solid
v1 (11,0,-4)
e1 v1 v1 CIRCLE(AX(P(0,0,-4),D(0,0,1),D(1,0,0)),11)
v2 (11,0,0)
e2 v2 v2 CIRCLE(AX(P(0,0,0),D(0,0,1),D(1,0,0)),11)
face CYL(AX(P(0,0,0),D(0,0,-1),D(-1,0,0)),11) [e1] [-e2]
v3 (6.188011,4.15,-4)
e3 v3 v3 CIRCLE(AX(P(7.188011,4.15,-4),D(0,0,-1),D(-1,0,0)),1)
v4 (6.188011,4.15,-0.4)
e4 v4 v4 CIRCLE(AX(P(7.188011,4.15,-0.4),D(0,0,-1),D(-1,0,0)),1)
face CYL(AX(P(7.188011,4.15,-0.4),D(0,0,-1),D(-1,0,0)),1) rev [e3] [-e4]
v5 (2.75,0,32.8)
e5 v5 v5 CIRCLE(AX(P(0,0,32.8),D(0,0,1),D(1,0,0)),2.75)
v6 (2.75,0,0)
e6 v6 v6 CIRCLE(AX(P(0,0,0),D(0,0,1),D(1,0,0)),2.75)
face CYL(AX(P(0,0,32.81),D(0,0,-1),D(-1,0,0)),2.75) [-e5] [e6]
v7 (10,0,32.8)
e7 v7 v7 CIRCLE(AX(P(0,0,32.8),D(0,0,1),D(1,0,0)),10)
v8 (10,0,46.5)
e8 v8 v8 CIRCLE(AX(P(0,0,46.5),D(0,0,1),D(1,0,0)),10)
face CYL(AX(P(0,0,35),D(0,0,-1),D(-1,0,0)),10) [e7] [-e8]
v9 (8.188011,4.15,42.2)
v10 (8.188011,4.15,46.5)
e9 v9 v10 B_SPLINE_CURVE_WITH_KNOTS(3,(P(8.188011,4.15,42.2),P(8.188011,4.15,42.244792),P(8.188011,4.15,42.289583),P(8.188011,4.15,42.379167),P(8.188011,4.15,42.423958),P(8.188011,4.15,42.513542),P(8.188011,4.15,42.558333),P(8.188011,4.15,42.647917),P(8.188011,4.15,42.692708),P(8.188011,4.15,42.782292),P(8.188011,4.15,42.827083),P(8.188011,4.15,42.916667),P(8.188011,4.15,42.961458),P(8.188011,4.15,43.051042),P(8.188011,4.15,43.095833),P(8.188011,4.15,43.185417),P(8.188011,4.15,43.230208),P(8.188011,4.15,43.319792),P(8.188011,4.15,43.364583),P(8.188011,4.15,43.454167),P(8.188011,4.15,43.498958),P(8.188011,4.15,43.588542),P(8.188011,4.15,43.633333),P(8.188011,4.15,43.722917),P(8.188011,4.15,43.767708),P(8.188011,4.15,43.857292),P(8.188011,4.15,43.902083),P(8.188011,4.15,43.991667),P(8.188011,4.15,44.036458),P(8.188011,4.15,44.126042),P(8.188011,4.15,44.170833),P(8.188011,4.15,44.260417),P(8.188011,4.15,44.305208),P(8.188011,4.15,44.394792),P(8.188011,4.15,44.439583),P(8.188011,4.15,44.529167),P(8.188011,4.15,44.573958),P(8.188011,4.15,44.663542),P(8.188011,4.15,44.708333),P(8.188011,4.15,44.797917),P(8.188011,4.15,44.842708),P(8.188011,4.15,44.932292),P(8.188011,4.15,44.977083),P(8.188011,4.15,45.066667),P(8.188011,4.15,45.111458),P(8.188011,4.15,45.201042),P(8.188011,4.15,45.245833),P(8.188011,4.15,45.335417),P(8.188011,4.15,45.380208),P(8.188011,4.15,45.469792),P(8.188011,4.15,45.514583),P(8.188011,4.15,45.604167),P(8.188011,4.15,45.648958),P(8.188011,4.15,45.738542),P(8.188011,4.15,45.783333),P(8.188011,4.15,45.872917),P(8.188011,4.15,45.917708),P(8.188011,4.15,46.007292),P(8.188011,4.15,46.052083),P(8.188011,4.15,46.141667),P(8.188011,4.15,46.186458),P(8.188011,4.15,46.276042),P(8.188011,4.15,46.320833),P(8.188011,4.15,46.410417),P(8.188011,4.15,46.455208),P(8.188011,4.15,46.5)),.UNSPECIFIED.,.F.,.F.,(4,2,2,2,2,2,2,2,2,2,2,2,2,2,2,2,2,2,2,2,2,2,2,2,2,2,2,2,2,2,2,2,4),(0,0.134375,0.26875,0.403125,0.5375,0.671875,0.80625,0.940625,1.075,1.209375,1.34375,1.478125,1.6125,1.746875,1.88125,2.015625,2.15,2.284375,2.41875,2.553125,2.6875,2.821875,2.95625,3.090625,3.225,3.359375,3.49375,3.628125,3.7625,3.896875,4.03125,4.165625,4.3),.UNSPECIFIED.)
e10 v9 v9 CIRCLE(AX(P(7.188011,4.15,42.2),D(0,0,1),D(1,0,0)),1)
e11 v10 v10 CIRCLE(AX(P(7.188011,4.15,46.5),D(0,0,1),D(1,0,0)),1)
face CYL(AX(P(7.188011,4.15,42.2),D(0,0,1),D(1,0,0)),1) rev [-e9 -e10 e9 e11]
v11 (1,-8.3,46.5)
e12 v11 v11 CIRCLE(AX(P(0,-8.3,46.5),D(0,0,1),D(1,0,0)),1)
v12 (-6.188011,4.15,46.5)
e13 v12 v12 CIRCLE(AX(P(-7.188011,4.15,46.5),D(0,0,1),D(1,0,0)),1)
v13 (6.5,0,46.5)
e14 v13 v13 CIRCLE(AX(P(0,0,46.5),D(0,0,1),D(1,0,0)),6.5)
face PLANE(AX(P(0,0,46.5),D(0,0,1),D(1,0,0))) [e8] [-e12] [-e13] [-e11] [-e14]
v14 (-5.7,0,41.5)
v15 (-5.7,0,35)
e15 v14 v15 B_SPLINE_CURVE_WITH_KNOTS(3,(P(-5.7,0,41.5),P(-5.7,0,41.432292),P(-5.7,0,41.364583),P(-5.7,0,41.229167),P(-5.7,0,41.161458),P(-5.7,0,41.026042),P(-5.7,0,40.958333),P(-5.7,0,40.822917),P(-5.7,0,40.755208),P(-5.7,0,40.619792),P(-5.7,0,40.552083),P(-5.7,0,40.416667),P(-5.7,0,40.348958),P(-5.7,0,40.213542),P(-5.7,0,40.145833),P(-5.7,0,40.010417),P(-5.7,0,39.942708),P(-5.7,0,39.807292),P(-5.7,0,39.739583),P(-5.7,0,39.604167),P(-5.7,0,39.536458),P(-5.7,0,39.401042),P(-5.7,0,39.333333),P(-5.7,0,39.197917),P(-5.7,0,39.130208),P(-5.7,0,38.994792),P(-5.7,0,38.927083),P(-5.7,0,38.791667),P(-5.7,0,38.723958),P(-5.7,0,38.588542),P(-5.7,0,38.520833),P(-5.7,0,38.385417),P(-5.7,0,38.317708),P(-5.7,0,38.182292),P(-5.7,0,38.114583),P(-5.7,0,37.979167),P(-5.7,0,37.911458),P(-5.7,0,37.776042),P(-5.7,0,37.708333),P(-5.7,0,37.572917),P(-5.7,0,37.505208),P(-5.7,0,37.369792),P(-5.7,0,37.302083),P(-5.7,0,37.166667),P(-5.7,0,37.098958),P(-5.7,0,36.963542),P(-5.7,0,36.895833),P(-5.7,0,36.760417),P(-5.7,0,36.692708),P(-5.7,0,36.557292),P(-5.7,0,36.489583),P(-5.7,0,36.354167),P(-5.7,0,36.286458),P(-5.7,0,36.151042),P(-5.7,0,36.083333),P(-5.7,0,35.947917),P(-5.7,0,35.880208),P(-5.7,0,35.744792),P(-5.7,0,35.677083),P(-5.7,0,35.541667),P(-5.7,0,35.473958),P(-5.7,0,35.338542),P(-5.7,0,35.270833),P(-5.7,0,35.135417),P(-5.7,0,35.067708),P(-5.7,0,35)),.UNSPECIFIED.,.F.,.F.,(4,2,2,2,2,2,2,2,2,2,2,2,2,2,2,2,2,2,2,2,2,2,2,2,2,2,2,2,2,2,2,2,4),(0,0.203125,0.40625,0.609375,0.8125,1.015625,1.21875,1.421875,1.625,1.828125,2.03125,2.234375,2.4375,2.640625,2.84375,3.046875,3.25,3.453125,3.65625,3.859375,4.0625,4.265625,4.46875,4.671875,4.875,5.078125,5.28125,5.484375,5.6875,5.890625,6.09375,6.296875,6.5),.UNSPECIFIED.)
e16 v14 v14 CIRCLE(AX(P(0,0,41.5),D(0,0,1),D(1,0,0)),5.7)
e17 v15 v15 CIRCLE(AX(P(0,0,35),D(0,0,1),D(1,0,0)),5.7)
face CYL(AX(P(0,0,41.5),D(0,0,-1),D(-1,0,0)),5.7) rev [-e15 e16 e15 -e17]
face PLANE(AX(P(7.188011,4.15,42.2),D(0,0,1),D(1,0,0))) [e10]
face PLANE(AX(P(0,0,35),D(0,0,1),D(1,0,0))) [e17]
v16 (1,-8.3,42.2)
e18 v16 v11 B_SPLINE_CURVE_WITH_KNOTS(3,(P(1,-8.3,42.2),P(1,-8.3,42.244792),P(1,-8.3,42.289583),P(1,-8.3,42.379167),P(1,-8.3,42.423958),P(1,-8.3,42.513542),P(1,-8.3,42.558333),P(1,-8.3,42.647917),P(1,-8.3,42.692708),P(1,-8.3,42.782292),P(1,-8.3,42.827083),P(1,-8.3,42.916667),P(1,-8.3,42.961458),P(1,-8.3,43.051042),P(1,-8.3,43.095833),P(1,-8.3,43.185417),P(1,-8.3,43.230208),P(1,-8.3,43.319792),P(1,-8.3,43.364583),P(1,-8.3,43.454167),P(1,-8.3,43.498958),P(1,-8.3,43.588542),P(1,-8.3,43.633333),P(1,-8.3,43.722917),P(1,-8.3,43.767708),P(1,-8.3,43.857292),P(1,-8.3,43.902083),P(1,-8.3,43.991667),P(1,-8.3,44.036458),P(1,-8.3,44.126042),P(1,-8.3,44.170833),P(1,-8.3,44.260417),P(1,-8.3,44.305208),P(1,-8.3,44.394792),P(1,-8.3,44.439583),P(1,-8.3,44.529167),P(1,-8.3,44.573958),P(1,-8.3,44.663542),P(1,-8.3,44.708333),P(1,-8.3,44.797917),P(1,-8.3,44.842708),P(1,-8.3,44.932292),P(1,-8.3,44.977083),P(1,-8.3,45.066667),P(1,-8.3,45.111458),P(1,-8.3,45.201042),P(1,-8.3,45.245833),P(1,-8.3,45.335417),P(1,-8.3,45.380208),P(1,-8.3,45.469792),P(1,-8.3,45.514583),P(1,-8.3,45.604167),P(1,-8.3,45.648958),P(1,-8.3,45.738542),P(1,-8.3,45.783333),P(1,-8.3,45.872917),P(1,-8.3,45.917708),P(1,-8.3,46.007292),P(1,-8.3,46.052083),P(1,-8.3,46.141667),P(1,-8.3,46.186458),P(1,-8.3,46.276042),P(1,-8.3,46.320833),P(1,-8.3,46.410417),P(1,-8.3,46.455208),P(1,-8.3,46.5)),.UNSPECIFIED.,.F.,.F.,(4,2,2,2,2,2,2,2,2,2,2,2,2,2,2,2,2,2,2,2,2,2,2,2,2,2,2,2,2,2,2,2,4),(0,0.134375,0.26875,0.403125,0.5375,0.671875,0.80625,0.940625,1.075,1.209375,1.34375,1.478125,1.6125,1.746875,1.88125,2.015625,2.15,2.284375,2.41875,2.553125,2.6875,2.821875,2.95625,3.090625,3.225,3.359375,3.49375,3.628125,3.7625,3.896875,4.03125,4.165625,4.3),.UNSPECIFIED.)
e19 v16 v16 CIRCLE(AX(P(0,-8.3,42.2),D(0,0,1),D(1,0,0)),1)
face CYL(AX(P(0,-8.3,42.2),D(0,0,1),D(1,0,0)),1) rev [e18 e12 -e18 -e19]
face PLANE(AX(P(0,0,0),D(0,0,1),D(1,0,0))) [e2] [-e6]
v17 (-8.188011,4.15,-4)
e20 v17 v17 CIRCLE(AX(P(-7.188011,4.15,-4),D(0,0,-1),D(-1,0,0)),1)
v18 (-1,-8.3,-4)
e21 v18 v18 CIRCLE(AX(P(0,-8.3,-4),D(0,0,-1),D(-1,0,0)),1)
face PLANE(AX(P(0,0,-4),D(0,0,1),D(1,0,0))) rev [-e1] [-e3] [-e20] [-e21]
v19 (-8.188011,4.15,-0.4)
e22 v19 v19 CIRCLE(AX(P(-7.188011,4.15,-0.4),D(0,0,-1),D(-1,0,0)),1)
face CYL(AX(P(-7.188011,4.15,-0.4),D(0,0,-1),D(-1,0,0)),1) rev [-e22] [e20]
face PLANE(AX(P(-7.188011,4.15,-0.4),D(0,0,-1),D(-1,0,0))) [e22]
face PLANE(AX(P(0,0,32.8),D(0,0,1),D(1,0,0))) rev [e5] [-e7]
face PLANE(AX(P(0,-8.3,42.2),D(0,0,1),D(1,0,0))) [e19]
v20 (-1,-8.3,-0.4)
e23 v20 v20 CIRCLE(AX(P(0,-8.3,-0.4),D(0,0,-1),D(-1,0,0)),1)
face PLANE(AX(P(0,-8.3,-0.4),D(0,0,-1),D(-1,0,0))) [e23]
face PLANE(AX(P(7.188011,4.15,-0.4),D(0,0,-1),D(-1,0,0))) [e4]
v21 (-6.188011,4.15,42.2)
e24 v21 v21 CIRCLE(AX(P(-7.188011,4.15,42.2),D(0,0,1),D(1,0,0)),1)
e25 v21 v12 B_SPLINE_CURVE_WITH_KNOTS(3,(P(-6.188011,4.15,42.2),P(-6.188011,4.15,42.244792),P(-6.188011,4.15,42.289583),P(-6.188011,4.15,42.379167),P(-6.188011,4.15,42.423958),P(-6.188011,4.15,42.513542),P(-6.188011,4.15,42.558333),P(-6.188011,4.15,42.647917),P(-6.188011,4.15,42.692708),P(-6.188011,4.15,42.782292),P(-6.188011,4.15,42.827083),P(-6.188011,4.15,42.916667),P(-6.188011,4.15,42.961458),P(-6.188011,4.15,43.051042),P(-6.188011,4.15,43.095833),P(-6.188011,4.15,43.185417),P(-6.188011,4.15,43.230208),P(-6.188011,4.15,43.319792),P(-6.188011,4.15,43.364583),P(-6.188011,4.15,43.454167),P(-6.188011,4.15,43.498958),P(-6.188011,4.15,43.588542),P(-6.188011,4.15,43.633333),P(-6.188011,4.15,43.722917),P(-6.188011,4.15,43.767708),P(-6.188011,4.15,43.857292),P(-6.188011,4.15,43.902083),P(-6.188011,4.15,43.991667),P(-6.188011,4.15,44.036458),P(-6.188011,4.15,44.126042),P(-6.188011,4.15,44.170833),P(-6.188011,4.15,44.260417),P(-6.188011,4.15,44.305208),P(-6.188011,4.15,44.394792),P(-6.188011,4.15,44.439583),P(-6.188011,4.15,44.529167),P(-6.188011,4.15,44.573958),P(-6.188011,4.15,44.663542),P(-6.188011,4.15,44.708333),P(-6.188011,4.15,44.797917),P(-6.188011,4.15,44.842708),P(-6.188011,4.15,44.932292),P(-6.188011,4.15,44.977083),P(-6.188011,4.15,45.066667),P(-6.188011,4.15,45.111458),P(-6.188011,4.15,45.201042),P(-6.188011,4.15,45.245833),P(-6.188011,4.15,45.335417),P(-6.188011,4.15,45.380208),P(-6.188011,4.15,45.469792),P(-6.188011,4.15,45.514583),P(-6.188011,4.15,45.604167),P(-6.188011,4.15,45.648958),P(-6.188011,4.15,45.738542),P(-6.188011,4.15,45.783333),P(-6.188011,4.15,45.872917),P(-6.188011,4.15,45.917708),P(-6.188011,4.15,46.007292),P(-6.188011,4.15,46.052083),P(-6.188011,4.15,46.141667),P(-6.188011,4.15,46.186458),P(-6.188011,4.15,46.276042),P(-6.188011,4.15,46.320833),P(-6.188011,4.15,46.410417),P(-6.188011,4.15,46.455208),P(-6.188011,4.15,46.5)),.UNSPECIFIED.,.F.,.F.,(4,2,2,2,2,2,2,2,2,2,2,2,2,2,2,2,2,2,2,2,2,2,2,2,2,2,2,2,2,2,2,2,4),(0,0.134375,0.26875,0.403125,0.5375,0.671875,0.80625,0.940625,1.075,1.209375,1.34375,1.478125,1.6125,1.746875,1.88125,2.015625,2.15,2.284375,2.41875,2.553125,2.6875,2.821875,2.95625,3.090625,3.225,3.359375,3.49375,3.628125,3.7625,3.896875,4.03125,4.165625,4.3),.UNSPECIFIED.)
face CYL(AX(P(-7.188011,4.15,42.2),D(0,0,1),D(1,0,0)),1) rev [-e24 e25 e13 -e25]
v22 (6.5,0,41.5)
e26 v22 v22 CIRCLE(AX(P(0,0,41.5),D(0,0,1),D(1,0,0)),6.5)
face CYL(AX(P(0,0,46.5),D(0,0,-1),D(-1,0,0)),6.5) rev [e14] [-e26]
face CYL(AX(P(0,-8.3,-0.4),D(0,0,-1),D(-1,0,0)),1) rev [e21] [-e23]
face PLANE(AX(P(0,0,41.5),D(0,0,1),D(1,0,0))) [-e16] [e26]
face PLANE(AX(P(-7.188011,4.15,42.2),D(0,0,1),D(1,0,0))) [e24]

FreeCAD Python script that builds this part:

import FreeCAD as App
import Part
import Sketcher
from FreeCAD import Vector

doc = App.newDocument("Part")
params = doc.addObject("Spreadsheet::Sheet", "Params")
for row, (alias, value) in enumerate([
    ("sketch1_diameter", "22 mm"),
    ("pad1_length", "4 mm"),
    ("sketch2_diameter", "5.5 mm"),
    ("pad2_length", "32.81 mm"),
    ("sketch3_diameter", "20 mm"),
    ("pad3_length", "2.2 mm"),
    ("sketch4_diameter", "20 mm"),
    ("sketch4_diameter2", "11.4 mm"),
    ("pad4_length", "6.5 mm"),
    ("sketch5_diameter", "20 mm"),
    ("sketch5_diameter2", "13 mm"),
    ("pad5_length", "5 mm"),
    ("sketch6_diameter", "2 mm"),
    ("pocket1_length", "3.6 mm"),
    ("sketch7_diameter", "2 mm"),
    ("pocket2_length", "4.3 mm"),
], start=1):
    params.set(f"A{row}", alias)
    params.set(f"B{row}", "=" + value)
    params.setAlias(f"B{row}", alias)

body = doc.addObject("PartDesign::Body", "Body")

# Sketch on XY plane
sketch1 = doc.addObject("Sketcher::SketchObject", "Sketch")
body.addObject(sketch1)
sketch1.AttachmentSupport = (doc.XY_Plane, [""])
sketch1.MapMode = "FlatFace"
sketch1.AttachmentOffset = App.Placement(Vector(0, 0, -4), App.Rotation())
sketch1.addGeometry(Part.Circle(Vector(0, 0, 0), Vector(0, 0, 1), 11), False)
sketch1.addConstraint([
    Sketcher.Constraint("Coincident", 0, 3, -1, 1),
    Sketcher.Constraint("Diameter", 0, 22.0),
])
sketch1.setExpression("Constraints[1]", "Params.sketch1_diameter")
pad1 = doc.addObject("PartDesign::Pad", "Pad")
body.addObject(pad1)
pad1.Profile = sketch1
pad1.setExpression("Length", "Params.pad1_length")

# Sketch on XY plane
sketch2 = doc.addObject("Sketcher::SketchObject", "Sketch001")
body.addObject(sketch2)
sketch2.AttachmentSupport = (doc.XY_Plane, [""])
sketch2.MapMode = "FlatFace"
sketch2.addGeometry(Part.Circle(Vector(0, 0, 0), Vector(0, 0, 1), 2.8), False)
sketch2.addConstraint([
    Sketcher.Constraint("Coincident", 0, 3, -1, 1),
    Sketcher.Constraint("Diameter", 0, 5.5),
])
sketch2.setExpression("Constraints[1]", "Params.sketch2_diameter")
pad2 = doc.addObject("PartDesign::Pad", "Pad001")
body.addObject(pad2)
pad2.Profile = sketch2
pad2.setExpression("Length", "Params.pad2_length")

# Sketch on XY plane
sketch3 = doc.addObject("Sketcher::SketchObject", "Sketch002")
body.addObject(sketch3)
sketch3.AttachmentSupport = (doc.XY_Plane, [""])
sketch3.MapMode = "FlatFace"
sketch3.AttachmentOffset = App.Placement(Vector(0, 0, 32.8), App.Rotation())
sketch3.addGeometry(Part.Circle(Vector(0, 0, 0), Vector(0, 0, 1), 10), False)
sketch3.addConstraint([
    Sketcher.Constraint("Coincident", 0, 3, -1, 1),
    Sketcher.Constraint("Diameter", 0, 20.0),
])
sketch3.setExpression("Constraints[1]", "Params.sketch3_diameter")
pad3 = doc.addObject("PartDesign::Pad", "Pad002")
body.addObject(pad3)
pad3.Profile = sketch3
pad3.setExpression("Length", "Params.pad3_length")

# Sketch on XY plane
sketch4 = doc.addObject("Sketcher::SketchObject", "Sketch003")
body.addObject(sketch4)
sketch4.AttachmentSupport = (doc.XY_Plane, [""])
sketch4.MapMode = "FlatFace"
sketch4.AttachmentOffset = App.Placement(Vector(0, 0, 35), App.Rotation())
sketch4.addGeometry([
    Part.Circle(Vector(0, 0, 0), Vector(0, 0, 1), 10),
    Part.Circle(Vector(0, 0, 0), Vector(0, 0, 1), 6),
], False)
sketch4.addConstraint([
    Sketcher.Constraint("Coincident", 0, 3, -1, 1),
    Sketcher.Constraint("Coincident", 1, 3, -1, 1),
    Sketcher.Constraint("Diameter", 0, 20.0),
    Sketcher.Constraint("Diameter", 1, 11.4),
])
sketch4.setExpression("Constraints[2]", "Params.sketch4_diameter")
sketch4.setExpression("Constraints[3]", "Params.sketch4_diameter2")
pad4 = doc.addObject("PartDesign::Pad", "Pad003")
body.addObject(pad4)
pad4.Profile = sketch4
pad4.setExpression("Length", "Params.pad4_length")

# Sketch on XY plane
sketch5 = doc.addObject("Sketcher::SketchObject", "Sketch004")
body.addObject(sketch5)
sketch5.AttachmentSupport = (doc.XY_Plane, [""])
sketch5.MapMode = "FlatFace"
sketch5.AttachmentOffset = App.Placement(Vector(0, 0, 41.5), App.Rotation())
sketch5.addGeometry([
    Part.Circle(Vector(0, 0, 0), Vector(0, 0, 1), 10),
    Part.Circle(Vector(0, 0, 0), Vector(0, 0, 1), 6),
], False)
sketch5.addConstraint([
    Sketcher.Constraint("Coincident", 0, 3, -1, 1),
    Sketcher.Constraint("Coincident", 1, 3, -1, 1),
    Sketcher.Constraint("Diameter", 0, 20.0),
    Sketcher.Constraint("Diameter", 1, 13.0),
])
sketch5.setExpression("Constraints[2]", "Params.sketch5_diameter")
sketch5.setExpression("Constraints[3]", "Params.sketch5_diameter2")
pad5 = doc.addObject("PartDesign::Pad", "Pad004")
body.addObject(pad5)
pad5.Profile = sketch5
pad5.setExpression("Length", "Params.pad5_length")

# Sketch on XY plane
sketch6 = doc.addObject("Sketcher::SketchObject", "Sketch005")
body.addObject(sketch6)
sketch6.AttachmentSupport = (doc.XY_Plane, [""])
sketch6.MapMode = "FlatFace"
sketch6.AttachmentOffset = App.Placement(Vector(0, 0, -4), App.Rotation())
sketch6.addGeometry([
    Part.Circle(Vector(7.2, 4.2, 0), Vector(0, 0, 1), 1),
    Part.Circle(Vector(-7.2, 4.2, 0), Vector(0, 0, 1), 1),
    Part.Circle(Vector(0, -8.3, 0), Vector(0, 0, 1), 1),
], False)
sketch6.addConstraint([
    Sketcher.Constraint("Equal", 0, 1),
    Sketcher.Constraint("Equal", 1, 2),
    Sketcher.Constraint("Symmetric", 0, 3, 1, 3, -2),
    Sketcher.Constraint("PointOnObject", 2, 3, -2),
    Sketcher.Constraint("Diameter", 0, 2.0),
    Sketcher.Constraint("DistanceY", 2, 3, -1, 1, 8.3),
    Sketcher.Constraint("DistanceY", -1, 1, 0, 3, 4.15),
    Sketcher.Constraint("DistanceX", -1, 1, 0, 3, 7.188011),
])
sketch6.setExpression("Constraints[4]", "Params.sketch6_diameter")
pocket1 = doc.addObject("PartDesign::Pocket", "Pocket")
body.addObject(pocket1)
pocket1.Profile = sketch6
pocket1.setExpression("Length", "Params.pocket1_length")
pocket1.Reversed = True

# Sketch on XY plane
sketch7 = doc.addObject("Sketcher::SketchObject", "Sketch006")
body.addObject(sketch7)
sketch7.AttachmentSupport = (doc.XY_Plane, [""])
sketch7.MapMode = "FlatFace"
sketch7.AttachmentOffset = App.Placement(Vector(0, 0, 42.2), App.Rotation())
sketch7.addGeometry([
    Part.Circle(Vector(7.2, 4.2, 0), Vector(0, 0, 1), 1),
    Part.Circle(Vector(-7.2, 4.2, 0), Vector(0, 0, 1), 1),
    Part.Circle(Vector(0, -8.3, 0), Vector(0, 0, 1), 1),
], False)
sketch7.addConstraint([
    Sketcher.Constraint("Equal", 0, 1),
    Sketcher.Constraint("Equal", 1, 2),
    Sketcher.Constraint("Symmetric", 0, 3, 1, 3, -2),
    Sketcher.Constraint("PointOnObject", 2, 3, -2),
    Sketcher.Constraint("Diameter", 0, 2.0),
    Sketcher.Constraint("DistanceY", 2, 3, -1, 1, 8.3),
    Sketcher.Constraint("DistanceY", -1, 1, 0, 3, 4.15),
    Sketcher.Constraint("DistanceX", -1, 1, 0, 3, 7.188011),
])
sketch7.setExpression("Constraints[4]", "Params.sketch7_diameter")
pocket2 = doc.addObject("PartDesign::Pocket", "Pocket001")
body.addObject(pocket2)
pocket2.Profile = sketch7
pocket2.setExpression("Length", "Params.pocket2_length")
pocket2.Reversed = True

doc.recompute()
